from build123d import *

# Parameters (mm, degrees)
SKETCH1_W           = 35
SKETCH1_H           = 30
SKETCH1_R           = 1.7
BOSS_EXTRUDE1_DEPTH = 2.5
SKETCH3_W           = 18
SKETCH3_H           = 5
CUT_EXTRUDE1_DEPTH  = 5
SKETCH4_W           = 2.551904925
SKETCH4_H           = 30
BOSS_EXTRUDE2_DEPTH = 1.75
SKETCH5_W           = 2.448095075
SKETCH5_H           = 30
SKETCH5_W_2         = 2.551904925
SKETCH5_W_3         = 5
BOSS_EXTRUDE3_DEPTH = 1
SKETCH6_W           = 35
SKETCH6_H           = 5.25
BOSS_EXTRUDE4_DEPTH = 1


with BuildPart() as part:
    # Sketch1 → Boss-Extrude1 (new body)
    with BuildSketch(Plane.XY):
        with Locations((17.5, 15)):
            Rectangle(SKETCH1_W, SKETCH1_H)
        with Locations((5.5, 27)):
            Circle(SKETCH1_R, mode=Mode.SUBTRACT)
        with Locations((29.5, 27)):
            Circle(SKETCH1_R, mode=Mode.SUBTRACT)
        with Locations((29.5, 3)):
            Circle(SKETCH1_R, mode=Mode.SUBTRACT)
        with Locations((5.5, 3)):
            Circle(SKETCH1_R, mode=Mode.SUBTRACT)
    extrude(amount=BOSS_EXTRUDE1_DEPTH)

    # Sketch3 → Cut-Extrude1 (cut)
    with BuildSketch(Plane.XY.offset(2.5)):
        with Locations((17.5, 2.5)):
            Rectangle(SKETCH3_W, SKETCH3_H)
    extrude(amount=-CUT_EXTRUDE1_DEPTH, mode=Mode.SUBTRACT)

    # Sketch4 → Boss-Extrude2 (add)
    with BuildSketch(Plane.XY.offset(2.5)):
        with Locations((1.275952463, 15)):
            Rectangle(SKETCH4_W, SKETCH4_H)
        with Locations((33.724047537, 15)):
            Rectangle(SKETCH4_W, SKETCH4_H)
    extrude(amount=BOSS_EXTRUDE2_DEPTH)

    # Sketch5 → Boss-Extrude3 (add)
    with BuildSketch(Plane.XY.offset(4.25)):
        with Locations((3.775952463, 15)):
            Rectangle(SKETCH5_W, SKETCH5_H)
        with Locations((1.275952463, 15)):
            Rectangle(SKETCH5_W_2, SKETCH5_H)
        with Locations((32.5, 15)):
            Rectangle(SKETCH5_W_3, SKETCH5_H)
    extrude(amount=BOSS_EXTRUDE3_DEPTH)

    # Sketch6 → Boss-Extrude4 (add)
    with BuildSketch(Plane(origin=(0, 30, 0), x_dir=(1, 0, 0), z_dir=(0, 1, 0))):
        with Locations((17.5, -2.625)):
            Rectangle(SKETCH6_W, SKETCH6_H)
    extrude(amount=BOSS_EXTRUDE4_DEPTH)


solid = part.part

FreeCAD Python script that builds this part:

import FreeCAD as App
import Part
import Sketcher

V = App.Vector


def add_polygon(sketch, points):
    """Adds a closed chain of lines whose ends are joined by coincident constraints."""
    first, n = sketch.GeometryCount, len(points)
    for a, b in zip(points, points[1:] + points[:1]):
        sketch.addGeometry(Part.LineSegment(App.Vector(*a, 0), App.Vector(*b, 0)), False)
    for i in range(n):
        sketch.addConstraint(Sketcher.Constraint("Coincident", first + i, 2, first + (i + 1) % n, 1))

doc = App.newDocument("Part")
body = doc.addObject("PartDesign::Body", "Body")

sketch1 = doc.addObject("Sketcher::SketchObject", "Sketch")
body.addObject(sketch1)
sketch1.AttachmentSupport = (doc.XY_Plane, [""])
sketch1.MapMode = "FlatFace"
add_polygon(sketch1, [(0, 30), (0, 0), (35, 0), (35, 30)])
sketch1.addGeometry(Part.Circle(V(5.5, 3, 0), V(0, 0, 1), 1.7), False)
sketch1.addGeometry(Part.Circle(V(29.5, 3, 0), V(0, 0, 1), 1.7), False)
sketch1.addGeometry(Part.Circle(V(5.5, 27, 0), V(0, 0, 1), 1.7), False)
sketch1.addGeometry(Part.Circle(V(29.5, 27, 0), V(0, 0, 1), 1.7), False)
sketch1.addConstraint([
    Sketcher.Constraint("Vertical", 0),
    Sketcher.Constraint("Horizontal", 1),
    Sketcher.Constraint("Vertical", 2),
    Sketcher.Constraint("Horizontal", 3),
    Sketcher.Constraint("Coincident", 0, 2, -1, 1),
    Sketcher.Constraint("Equal", 4, 5),
    Sketcher.Constraint("Equal", 5, 6),
    Sketcher.Constraint("Equal", 6, 7),
    Sketcher.Constraint("Horizontal", 4, 3, 5, 3),
    Sketcher.Constraint("Horizontal", 6, 3, 7, 3),
    Sketcher.Constraint("Vertical", 4, 3, 6, 3),
    Sketcher.Constraint("Vertical", 5, 3, 7, 3),
    Sketcher.Constraint("Diameter", 4, 3.4),
    Sketcher.Constraint("DistanceX", 1, 1, 1, 2, 35.0),
    Sketcher.Constraint("DistanceY", 0, 2, 0, 1, 30.0),
    Sketcher.Constraint("DistanceY", -1, 1, 4, 3, 3.0),
    Sketcher.Constraint("DistanceY", -1, 1, 6, 3, 27.0),
    Sketcher.Constraint("DistanceX", 4, 3, 5, 3, 24.0),
    Sketcher.Constraint("DistanceX", -1, 1, 4, 3, 5.5),
])
pad1 = doc.addObject("PartDesign::Pad", "Pad")
body.addObject(pad1)
pad1.Profile = sketch1
pad1.Length = 2.5

sketch2 = doc.addObject("Sketcher::SketchObject", "Sketch001")
body.addObject(sketch2)
sketch2.AttachmentSupport = (doc.XY_Plane, [""])
sketch2.MapMode = "FlatFace"
sketch2.AttachmentOffset = App.Placement(V(0, 0, 2.5), App.Rotation())
add_polygon(sketch2, [(8, 5), (8, 0), (26, 0), (26, 5)])
sketch2.addConstraint([
    Sketcher.Constraint("Vertical", 0),
    Sketcher.Constraint("Horizontal", 1),
    Sketcher.Constraint("Vertical", 2),
    Sketcher.Constraint("Horizontal", 3),
    Sketcher.Constraint("PointOnObject", 0, 2, -1),
    Sketcher.Constraint("DistanceX", 1, 1, 1, 2, 18.0),
    Sketcher.Constraint("DistanceY", 0, 2, 0, 1, 5.0),
    Sketcher.Constraint("DistanceX", -1, 1, 0, 2, 8.5),
])
pocket1 = doc.addObject("PartDesign::Pocket", "Pocket")
body.addObject(pocket1)
pocket1.Profile = sketch2
pocket1.Length = 5

sketch3 = doc.addObject("Sketcher::SketchObject", "Sketch002")
body.addObject(sketch3)
sketch3.AttachmentSupport = (doc.XY_Plane, [""])
sketch3.MapMode = "FlatFace"
sketch3.AttachmentOffset = App.Placement(V(0, 0, 2.5), App.Rotation())
add_polygon(sketch3, [(0, 30), (0, 0), (2.6, 0), (2.6, 30)])
add_polygon(sketch3, [(32.4, 30), (32.4, 0), (35, 0), (35, 30)])
sketch3.addConstraint([
    Sketcher.Constraint("Vertical", 0),
    Sketcher.Constraint("Horizontal", 1),
    Sketcher.Constraint("Vertical", 2),
    Sketcher.Constraint("Horizontal", 3),
    Sketcher.Constraint("Vertical", 4),
    Sketcher.Constraint("Horizontal", 5),
    Sketcher.Constraint("Vertical", 6),
    Sketcher.Constraint("Horizontal", 7),
    Sketcher.Constraint("Coincident", 0, 2, -1, 1),
    Sketcher.Constraint("PointOnObject", 4, 2, -1),
    Sketcher.Constraint("Horizontal", 3, 2, 6, 2),
    Sketcher.Constraint("Equal", 3, 5),
    Sketcher.Constraint("DistanceY", 0, 2, 0, 1, 30.0),
    Sketcher.Constraint("DistanceX", -1, 1, 5, 2, 35.0),
    Sketcher.Constraint("DistanceX", 1, 1, 1, 2, 2.551905),
])
pad2 = doc.addObject("PartDesign::Pad", "Pad001")
body.addObject(pad2)
pad2.Profile = sketch3
pad2.Length = 1.75

sketch4 = doc.addObject("Sketcher::SketchObject", "Sketch003")
body.addObject(sketch4)
sketch4.AttachmentSupport = (doc.XY_Plane, [""])
sketch4.MapMode = "FlatFace"
sketch4.AttachmentOffset = App.Placement(V(0, 0, 4.25), App.Rotation())
add_polygon(sketch4, [(5, 0), (5, 30), (0, 30), (0, 0)])
add_polygon(sketch4, [(30, 30), (30, 0), (35, 0), (35, 30)])
sketch4.addConstraint([
    Sketcher.Constraint("Vertical", 0),
    Sketcher.Constraint("Horizontal", 1),
    Sketcher.Constraint("Vertical", 2),
    Sketcher.Constraint("Horizontal", 3),
    Sketcher.Constraint("Vertical", 4),
    Sketcher.Constraint("Horizontal", 5),
    Sketcher.Constraint("Vertical", 6),
    Sketcher.Constraint("Horizontal", 7),
    Sketcher.Constraint("Coincident", 2, 2, -1, 1),
    Sketcher.Constraint("PointOnObject", 4, 2, -1),
    Sketcher.Constraint("Horizontal", 1, 2, 6, 2),
    Sketcher.Constraint("Equal", 3, 5),
    Sketcher.Constraint("DistanceX", 1, 2, 1, 1, 5.0),
    Sketcher.Constraint("DistanceY", 0, 1, 0, 2, 30.0),
    Sketcher.Constraint("DistanceX", -1, 1, 4, 2, 30.0),
])
pad3 = doc.addObject("PartDesign::Pad", "Pad002")
body.addObject(pad3)
pad3.Profile = sketch4
pad3.Length = 1

sketch5 = doc.addObject("Sketcher::SketchObject", "Sketch004")
body.addObject(sketch5)
sketch5.AttachmentSupport = (doc.XZ_Plane, [""])
sketch5.MapMode = "FlatFace"
sketch5.AttachmentOffset = App.Placement(V(0, 0, -30), App.Rotation())
add_polygon(sketch5, [(0, 0), (0, 5), (35, 5), (35, 0)])
sketch5.addConstraint([
    Sketcher.Constraint("Vertical", 0),
    Sketcher.Constraint("Horizontal", 1),
    Sketcher.Constraint("Vertical", 2),
    Sketcher.Constraint("Horizontal", 3),
    Sketcher.Constraint("Coincident", 3, 2, -1, 1),
    Sketcher.Constraint("DistanceX", 1, 1, 1, 2, 35.0),
    Sketcher.Constraint("DistanceY", 0, 1, 0, 2, 5.25),
])
pad4 = doc.addObject("PartDesign::Pad", "Pad003")
body.addObject(pad4)
pad4.Profile = sketch5
pad4.Length = 1
pad4.Reversed = True

doc.recompute()
